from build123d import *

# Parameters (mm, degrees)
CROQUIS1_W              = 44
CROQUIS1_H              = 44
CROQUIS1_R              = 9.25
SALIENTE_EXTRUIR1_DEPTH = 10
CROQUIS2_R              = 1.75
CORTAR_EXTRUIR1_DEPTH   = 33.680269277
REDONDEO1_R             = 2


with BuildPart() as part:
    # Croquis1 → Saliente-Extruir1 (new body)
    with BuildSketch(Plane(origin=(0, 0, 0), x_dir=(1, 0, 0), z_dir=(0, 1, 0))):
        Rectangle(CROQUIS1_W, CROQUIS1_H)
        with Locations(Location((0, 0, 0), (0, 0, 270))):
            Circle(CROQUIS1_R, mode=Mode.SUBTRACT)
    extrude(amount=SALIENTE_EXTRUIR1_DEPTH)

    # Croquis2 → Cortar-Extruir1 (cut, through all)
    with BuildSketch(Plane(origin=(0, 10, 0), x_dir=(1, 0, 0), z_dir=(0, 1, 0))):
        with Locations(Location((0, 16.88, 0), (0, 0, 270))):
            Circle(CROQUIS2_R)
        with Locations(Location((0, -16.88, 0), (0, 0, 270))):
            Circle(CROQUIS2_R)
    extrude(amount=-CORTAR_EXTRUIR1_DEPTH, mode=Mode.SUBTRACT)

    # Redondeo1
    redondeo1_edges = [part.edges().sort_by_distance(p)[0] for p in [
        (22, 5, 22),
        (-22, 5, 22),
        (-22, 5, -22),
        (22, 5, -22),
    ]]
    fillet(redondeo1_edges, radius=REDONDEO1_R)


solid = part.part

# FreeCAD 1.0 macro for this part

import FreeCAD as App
import Part
import Sketcher


def edges_at(feature, points):
    """Names of the edges that pass closest to the given points."""
    edges = feature.Shape.Edges
    near = lambda p: min(range(len(edges)), key=lambda i: edges[i].distToShape(Part.Vertex(*p))[0])
    return sorted({f"Edge{near(p) + 1}" for p in points})


def add_polygon(sketch, points):
    """Adds a closed chain of lines whose ends are joined by coincident constraints."""
    first, n = sketch.GeometryCount, len(points)
    for a, b in zip(points, points[1:] + points[:1]):
        sketch.addGeometry(Part.LineSegment(App.Vector(*a, 0), App.Vector(*b, 0)), False)
    for i in range(n):
        sketch.addConstraint(Sketcher.Constraint("Coincident", first + i, 2, first + (i + 1) % n, 1))

doc = App.newDocument("Part")
body = doc.addObject("PartDesign::Body", "Body")

# Sketch on XZ plane
sketch1 = body.newObject("Sketcher::SketchObject", "Sketch")
sketch1.AttachmentSupport = (doc.getObject("XZ_Plane"), [""])
sketch1.MapMode = "FlatFace"
add_polygon(sketch1, [(-22, -22), (-22, 22), (22, 22), (22, -22)])  # lines 0-3
sketch1.addGeometry(Part.Circle(App.Vector(0, 0, 0), App.Vector(0, 0, 1), 9), False)  # 4
sketch1.addConstraint([
    Sketcher.Constraint("Vertical", 0),
    Sketcher.Constraint("Horizontal", 1),
    Sketcher.Constraint("Vertical", 2),
    Sketcher.Constraint("Horizontal", 3),
    Sketcher.Constraint("Coincident", 4, 3, -1, 1),
    Sketcher.Constraint("Symmetric", 0, 2, 2, 2, -1, 1),
    Sketcher.Constraint("Equal", 3, 0),
    Sketcher.Constraint("Diameter", 4, 18.5),
    Sketcher.Constraint("DistanceX", 1, 1, 1, 2, 44.0),
])
pad1 = body.newObject("PartDesign::Pad", "Pad")
pad1.Profile = sketch1
pad1.Length = 10
pad1.Reversed = True

# Sketch on XZ plane
sketch2 = body.newObject("Sketcher::SketchObject", "Sketch001")
sketch2.AttachmentSupport = (doc.getObject("XZ_Plane"), [""])
sketch2.MapMode = "FlatFace"
sketch2.AttachmentOffset = App.Placement(App.Vector(0, 0, -10), App.Rotation())
sketch2.addGeometry([
    Part.Circle(App.Vector(0, -16.9, 0), App.Vector(0, 0, 1), 1.8),
    Part.Circle(App.Vector(0, 16.9, 0), App.Vector(0, 0, 1), 1.8),
], False)
sketch2.addConstraint([
    Sketcher.Constraint("Equal", 0, 1),
    Sketcher.Constraint("Symmetric", 0, 3, 1, 3, -1, 1),
    Sketcher.Constraint("PointOnObject", 0, 3, -2),
    Sketcher.Constraint("Diameter", 0, 3.5),
    Sketcher.Constraint("DistanceY", 0, 3, -1, 1, 16.88),
])
pocket1 = body.newObject("PartDesign::Pocket", "Pocket")
pocket1.Profile = sketch2
pocket1.Type = "ThroughAll"
pocket1.Reversed = True
doc.recompute()

fillet = body.newObject("PartDesign::Fillet", "Fillet")
fillet.Base = (pocket1, edges_at(pocket1, [
    (22, 5, 22),
    (-22, 5, 22),
    (-22, 5, -22),
    (22, 5, -22),
]))
fillet.Radius = 2

doc.recompute()
